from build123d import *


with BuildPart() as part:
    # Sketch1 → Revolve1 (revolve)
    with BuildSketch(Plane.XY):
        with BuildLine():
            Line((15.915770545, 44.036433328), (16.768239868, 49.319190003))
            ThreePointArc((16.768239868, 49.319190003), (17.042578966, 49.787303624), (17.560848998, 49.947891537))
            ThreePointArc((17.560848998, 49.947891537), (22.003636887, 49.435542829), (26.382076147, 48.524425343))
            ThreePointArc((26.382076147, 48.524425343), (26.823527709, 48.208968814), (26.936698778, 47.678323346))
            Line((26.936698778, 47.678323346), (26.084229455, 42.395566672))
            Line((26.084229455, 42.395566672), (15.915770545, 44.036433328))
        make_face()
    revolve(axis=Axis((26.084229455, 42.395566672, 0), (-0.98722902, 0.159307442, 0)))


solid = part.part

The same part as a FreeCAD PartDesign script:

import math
import FreeCAD as App
import Part
import Sketcher

V = App.Vector

doc = App.newDocument("Part")
body = doc.addObject("PartDesign::Body", "Body")

# Sketch on XY plane
sketch1 = body.newObject("Sketcher::SketchObject", "Sketch")
sketch1.AttachmentSupport = (doc.getObject("XY_Plane"), [""])
sketch1.MapMode = "FlatFace"
sketch1.addGeometry([
    Part.LineSegment(V(16.76824, 49.31919, 0), V(15.915771, 44.036433, 0)),  # 0
    Part.LineSegment(V(15.915771, 44.036433, 0), V(26.084229, 42.395567, 0)),  # 1
    Part.LineSegment(V(26.084229, 42.395567, 0), V(26.936699, 47.678323, 0)),  # 2
    Part.ArcOfCircle(Part.Circle(V(26.196277, 47.797804, 0), V(0, 0, 1), 0.75), math.radians(-9.1667), math.radians(75.656645)),  # 3
    Part.ArcOfCircle(Part.Circle(V(14.11537, 0.551911, 0), V(0, 0, 1), 49.516), math.radians(75.656645), math.radians(86.009955)),  # 4
    Part.ArcOfCircle(Part.Circle(V(17.508662, 49.199709, 0), V(0, 0, 1), 0.75), math.radians(86.009955), math.radians(170.8333)),  # 5
], False)
sketch1.addGeometry(Part.LineSegment(V(26.084229, 42.395567, 0), V(15.915771, 44.036433, 0)), True)  # axis
sketch1.addConstraint([
    Sketcher.Constraint("Coincident", 0, 2, 1, 1),
    Sketcher.Constraint("Coincident", 1, 2, 2, 1),
    Sketcher.Constraint("Coincident", 2, 2, 3, 1),
    Sketcher.Constraint("Coincident", 3, 2, 4, 1),
    Sketcher.Constraint("Coincident", 4, 2, 5, 1),
    Sketcher.Constraint("Coincident", 5, 2, 0, 1),
    Sketcher.Constraint("Coincident", 6, 1, 1, 2),
    Sketcher.Constraint("Coincident", 6, 2, 0, 2),
    Sketcher.Constraint("Radius", 3, 0.75),
    Sketcher.Constraint("Radius", 5, 0.75),
    Sketcher.Constraint("Radius", 4, 49.516),
    Sketcher.Constraint("Distance", 1, 10.3),
    Sketcher.Constraint("DistanceX", -1, 1, 2, 2, 26.936699),
    Sketcher.Constraint("DistanceY", 4, 3, 5, 3, 48.647799),
    Sketcher.Constraint("DistanceX", 4, 3, 0, 2, 1.800401),
    Sketcher.Constraint("DistanceX", 3, 3, 3, 2, 0.185799),
    Sketcher.Constraint("DistanceY", 2, 2, 3, 2, 0.846102),
    Sketcher.Constraint("DistanceY", 5, 2, 4, 2, 0.628702),
    Sketcher.Constraint("DistanceX", -1, 1, 4, 3, 14.11537),
    Sketcher.Constraint("DistanceY", -1, 1, 4, 3, 0.551911),
    Sketcher.Constraint("DistanceX", -1, 1, 1, 2, 26.084229),
    Sketcher.Constraint("DistanceX", -1, 1, 4, 2, 17.560849),
    Sketcher.Constraint("DistanceY", 0, 2, 3, 3, 3.761371),
])
revolution = body.newObject("PartDesign::Revolution", "Revolution")
revolution.Profile = sketch1
revolution.ReferenceAxis = (sketch1, ["Axis0"])
revolution.Angle = 360

doc.recompute()
